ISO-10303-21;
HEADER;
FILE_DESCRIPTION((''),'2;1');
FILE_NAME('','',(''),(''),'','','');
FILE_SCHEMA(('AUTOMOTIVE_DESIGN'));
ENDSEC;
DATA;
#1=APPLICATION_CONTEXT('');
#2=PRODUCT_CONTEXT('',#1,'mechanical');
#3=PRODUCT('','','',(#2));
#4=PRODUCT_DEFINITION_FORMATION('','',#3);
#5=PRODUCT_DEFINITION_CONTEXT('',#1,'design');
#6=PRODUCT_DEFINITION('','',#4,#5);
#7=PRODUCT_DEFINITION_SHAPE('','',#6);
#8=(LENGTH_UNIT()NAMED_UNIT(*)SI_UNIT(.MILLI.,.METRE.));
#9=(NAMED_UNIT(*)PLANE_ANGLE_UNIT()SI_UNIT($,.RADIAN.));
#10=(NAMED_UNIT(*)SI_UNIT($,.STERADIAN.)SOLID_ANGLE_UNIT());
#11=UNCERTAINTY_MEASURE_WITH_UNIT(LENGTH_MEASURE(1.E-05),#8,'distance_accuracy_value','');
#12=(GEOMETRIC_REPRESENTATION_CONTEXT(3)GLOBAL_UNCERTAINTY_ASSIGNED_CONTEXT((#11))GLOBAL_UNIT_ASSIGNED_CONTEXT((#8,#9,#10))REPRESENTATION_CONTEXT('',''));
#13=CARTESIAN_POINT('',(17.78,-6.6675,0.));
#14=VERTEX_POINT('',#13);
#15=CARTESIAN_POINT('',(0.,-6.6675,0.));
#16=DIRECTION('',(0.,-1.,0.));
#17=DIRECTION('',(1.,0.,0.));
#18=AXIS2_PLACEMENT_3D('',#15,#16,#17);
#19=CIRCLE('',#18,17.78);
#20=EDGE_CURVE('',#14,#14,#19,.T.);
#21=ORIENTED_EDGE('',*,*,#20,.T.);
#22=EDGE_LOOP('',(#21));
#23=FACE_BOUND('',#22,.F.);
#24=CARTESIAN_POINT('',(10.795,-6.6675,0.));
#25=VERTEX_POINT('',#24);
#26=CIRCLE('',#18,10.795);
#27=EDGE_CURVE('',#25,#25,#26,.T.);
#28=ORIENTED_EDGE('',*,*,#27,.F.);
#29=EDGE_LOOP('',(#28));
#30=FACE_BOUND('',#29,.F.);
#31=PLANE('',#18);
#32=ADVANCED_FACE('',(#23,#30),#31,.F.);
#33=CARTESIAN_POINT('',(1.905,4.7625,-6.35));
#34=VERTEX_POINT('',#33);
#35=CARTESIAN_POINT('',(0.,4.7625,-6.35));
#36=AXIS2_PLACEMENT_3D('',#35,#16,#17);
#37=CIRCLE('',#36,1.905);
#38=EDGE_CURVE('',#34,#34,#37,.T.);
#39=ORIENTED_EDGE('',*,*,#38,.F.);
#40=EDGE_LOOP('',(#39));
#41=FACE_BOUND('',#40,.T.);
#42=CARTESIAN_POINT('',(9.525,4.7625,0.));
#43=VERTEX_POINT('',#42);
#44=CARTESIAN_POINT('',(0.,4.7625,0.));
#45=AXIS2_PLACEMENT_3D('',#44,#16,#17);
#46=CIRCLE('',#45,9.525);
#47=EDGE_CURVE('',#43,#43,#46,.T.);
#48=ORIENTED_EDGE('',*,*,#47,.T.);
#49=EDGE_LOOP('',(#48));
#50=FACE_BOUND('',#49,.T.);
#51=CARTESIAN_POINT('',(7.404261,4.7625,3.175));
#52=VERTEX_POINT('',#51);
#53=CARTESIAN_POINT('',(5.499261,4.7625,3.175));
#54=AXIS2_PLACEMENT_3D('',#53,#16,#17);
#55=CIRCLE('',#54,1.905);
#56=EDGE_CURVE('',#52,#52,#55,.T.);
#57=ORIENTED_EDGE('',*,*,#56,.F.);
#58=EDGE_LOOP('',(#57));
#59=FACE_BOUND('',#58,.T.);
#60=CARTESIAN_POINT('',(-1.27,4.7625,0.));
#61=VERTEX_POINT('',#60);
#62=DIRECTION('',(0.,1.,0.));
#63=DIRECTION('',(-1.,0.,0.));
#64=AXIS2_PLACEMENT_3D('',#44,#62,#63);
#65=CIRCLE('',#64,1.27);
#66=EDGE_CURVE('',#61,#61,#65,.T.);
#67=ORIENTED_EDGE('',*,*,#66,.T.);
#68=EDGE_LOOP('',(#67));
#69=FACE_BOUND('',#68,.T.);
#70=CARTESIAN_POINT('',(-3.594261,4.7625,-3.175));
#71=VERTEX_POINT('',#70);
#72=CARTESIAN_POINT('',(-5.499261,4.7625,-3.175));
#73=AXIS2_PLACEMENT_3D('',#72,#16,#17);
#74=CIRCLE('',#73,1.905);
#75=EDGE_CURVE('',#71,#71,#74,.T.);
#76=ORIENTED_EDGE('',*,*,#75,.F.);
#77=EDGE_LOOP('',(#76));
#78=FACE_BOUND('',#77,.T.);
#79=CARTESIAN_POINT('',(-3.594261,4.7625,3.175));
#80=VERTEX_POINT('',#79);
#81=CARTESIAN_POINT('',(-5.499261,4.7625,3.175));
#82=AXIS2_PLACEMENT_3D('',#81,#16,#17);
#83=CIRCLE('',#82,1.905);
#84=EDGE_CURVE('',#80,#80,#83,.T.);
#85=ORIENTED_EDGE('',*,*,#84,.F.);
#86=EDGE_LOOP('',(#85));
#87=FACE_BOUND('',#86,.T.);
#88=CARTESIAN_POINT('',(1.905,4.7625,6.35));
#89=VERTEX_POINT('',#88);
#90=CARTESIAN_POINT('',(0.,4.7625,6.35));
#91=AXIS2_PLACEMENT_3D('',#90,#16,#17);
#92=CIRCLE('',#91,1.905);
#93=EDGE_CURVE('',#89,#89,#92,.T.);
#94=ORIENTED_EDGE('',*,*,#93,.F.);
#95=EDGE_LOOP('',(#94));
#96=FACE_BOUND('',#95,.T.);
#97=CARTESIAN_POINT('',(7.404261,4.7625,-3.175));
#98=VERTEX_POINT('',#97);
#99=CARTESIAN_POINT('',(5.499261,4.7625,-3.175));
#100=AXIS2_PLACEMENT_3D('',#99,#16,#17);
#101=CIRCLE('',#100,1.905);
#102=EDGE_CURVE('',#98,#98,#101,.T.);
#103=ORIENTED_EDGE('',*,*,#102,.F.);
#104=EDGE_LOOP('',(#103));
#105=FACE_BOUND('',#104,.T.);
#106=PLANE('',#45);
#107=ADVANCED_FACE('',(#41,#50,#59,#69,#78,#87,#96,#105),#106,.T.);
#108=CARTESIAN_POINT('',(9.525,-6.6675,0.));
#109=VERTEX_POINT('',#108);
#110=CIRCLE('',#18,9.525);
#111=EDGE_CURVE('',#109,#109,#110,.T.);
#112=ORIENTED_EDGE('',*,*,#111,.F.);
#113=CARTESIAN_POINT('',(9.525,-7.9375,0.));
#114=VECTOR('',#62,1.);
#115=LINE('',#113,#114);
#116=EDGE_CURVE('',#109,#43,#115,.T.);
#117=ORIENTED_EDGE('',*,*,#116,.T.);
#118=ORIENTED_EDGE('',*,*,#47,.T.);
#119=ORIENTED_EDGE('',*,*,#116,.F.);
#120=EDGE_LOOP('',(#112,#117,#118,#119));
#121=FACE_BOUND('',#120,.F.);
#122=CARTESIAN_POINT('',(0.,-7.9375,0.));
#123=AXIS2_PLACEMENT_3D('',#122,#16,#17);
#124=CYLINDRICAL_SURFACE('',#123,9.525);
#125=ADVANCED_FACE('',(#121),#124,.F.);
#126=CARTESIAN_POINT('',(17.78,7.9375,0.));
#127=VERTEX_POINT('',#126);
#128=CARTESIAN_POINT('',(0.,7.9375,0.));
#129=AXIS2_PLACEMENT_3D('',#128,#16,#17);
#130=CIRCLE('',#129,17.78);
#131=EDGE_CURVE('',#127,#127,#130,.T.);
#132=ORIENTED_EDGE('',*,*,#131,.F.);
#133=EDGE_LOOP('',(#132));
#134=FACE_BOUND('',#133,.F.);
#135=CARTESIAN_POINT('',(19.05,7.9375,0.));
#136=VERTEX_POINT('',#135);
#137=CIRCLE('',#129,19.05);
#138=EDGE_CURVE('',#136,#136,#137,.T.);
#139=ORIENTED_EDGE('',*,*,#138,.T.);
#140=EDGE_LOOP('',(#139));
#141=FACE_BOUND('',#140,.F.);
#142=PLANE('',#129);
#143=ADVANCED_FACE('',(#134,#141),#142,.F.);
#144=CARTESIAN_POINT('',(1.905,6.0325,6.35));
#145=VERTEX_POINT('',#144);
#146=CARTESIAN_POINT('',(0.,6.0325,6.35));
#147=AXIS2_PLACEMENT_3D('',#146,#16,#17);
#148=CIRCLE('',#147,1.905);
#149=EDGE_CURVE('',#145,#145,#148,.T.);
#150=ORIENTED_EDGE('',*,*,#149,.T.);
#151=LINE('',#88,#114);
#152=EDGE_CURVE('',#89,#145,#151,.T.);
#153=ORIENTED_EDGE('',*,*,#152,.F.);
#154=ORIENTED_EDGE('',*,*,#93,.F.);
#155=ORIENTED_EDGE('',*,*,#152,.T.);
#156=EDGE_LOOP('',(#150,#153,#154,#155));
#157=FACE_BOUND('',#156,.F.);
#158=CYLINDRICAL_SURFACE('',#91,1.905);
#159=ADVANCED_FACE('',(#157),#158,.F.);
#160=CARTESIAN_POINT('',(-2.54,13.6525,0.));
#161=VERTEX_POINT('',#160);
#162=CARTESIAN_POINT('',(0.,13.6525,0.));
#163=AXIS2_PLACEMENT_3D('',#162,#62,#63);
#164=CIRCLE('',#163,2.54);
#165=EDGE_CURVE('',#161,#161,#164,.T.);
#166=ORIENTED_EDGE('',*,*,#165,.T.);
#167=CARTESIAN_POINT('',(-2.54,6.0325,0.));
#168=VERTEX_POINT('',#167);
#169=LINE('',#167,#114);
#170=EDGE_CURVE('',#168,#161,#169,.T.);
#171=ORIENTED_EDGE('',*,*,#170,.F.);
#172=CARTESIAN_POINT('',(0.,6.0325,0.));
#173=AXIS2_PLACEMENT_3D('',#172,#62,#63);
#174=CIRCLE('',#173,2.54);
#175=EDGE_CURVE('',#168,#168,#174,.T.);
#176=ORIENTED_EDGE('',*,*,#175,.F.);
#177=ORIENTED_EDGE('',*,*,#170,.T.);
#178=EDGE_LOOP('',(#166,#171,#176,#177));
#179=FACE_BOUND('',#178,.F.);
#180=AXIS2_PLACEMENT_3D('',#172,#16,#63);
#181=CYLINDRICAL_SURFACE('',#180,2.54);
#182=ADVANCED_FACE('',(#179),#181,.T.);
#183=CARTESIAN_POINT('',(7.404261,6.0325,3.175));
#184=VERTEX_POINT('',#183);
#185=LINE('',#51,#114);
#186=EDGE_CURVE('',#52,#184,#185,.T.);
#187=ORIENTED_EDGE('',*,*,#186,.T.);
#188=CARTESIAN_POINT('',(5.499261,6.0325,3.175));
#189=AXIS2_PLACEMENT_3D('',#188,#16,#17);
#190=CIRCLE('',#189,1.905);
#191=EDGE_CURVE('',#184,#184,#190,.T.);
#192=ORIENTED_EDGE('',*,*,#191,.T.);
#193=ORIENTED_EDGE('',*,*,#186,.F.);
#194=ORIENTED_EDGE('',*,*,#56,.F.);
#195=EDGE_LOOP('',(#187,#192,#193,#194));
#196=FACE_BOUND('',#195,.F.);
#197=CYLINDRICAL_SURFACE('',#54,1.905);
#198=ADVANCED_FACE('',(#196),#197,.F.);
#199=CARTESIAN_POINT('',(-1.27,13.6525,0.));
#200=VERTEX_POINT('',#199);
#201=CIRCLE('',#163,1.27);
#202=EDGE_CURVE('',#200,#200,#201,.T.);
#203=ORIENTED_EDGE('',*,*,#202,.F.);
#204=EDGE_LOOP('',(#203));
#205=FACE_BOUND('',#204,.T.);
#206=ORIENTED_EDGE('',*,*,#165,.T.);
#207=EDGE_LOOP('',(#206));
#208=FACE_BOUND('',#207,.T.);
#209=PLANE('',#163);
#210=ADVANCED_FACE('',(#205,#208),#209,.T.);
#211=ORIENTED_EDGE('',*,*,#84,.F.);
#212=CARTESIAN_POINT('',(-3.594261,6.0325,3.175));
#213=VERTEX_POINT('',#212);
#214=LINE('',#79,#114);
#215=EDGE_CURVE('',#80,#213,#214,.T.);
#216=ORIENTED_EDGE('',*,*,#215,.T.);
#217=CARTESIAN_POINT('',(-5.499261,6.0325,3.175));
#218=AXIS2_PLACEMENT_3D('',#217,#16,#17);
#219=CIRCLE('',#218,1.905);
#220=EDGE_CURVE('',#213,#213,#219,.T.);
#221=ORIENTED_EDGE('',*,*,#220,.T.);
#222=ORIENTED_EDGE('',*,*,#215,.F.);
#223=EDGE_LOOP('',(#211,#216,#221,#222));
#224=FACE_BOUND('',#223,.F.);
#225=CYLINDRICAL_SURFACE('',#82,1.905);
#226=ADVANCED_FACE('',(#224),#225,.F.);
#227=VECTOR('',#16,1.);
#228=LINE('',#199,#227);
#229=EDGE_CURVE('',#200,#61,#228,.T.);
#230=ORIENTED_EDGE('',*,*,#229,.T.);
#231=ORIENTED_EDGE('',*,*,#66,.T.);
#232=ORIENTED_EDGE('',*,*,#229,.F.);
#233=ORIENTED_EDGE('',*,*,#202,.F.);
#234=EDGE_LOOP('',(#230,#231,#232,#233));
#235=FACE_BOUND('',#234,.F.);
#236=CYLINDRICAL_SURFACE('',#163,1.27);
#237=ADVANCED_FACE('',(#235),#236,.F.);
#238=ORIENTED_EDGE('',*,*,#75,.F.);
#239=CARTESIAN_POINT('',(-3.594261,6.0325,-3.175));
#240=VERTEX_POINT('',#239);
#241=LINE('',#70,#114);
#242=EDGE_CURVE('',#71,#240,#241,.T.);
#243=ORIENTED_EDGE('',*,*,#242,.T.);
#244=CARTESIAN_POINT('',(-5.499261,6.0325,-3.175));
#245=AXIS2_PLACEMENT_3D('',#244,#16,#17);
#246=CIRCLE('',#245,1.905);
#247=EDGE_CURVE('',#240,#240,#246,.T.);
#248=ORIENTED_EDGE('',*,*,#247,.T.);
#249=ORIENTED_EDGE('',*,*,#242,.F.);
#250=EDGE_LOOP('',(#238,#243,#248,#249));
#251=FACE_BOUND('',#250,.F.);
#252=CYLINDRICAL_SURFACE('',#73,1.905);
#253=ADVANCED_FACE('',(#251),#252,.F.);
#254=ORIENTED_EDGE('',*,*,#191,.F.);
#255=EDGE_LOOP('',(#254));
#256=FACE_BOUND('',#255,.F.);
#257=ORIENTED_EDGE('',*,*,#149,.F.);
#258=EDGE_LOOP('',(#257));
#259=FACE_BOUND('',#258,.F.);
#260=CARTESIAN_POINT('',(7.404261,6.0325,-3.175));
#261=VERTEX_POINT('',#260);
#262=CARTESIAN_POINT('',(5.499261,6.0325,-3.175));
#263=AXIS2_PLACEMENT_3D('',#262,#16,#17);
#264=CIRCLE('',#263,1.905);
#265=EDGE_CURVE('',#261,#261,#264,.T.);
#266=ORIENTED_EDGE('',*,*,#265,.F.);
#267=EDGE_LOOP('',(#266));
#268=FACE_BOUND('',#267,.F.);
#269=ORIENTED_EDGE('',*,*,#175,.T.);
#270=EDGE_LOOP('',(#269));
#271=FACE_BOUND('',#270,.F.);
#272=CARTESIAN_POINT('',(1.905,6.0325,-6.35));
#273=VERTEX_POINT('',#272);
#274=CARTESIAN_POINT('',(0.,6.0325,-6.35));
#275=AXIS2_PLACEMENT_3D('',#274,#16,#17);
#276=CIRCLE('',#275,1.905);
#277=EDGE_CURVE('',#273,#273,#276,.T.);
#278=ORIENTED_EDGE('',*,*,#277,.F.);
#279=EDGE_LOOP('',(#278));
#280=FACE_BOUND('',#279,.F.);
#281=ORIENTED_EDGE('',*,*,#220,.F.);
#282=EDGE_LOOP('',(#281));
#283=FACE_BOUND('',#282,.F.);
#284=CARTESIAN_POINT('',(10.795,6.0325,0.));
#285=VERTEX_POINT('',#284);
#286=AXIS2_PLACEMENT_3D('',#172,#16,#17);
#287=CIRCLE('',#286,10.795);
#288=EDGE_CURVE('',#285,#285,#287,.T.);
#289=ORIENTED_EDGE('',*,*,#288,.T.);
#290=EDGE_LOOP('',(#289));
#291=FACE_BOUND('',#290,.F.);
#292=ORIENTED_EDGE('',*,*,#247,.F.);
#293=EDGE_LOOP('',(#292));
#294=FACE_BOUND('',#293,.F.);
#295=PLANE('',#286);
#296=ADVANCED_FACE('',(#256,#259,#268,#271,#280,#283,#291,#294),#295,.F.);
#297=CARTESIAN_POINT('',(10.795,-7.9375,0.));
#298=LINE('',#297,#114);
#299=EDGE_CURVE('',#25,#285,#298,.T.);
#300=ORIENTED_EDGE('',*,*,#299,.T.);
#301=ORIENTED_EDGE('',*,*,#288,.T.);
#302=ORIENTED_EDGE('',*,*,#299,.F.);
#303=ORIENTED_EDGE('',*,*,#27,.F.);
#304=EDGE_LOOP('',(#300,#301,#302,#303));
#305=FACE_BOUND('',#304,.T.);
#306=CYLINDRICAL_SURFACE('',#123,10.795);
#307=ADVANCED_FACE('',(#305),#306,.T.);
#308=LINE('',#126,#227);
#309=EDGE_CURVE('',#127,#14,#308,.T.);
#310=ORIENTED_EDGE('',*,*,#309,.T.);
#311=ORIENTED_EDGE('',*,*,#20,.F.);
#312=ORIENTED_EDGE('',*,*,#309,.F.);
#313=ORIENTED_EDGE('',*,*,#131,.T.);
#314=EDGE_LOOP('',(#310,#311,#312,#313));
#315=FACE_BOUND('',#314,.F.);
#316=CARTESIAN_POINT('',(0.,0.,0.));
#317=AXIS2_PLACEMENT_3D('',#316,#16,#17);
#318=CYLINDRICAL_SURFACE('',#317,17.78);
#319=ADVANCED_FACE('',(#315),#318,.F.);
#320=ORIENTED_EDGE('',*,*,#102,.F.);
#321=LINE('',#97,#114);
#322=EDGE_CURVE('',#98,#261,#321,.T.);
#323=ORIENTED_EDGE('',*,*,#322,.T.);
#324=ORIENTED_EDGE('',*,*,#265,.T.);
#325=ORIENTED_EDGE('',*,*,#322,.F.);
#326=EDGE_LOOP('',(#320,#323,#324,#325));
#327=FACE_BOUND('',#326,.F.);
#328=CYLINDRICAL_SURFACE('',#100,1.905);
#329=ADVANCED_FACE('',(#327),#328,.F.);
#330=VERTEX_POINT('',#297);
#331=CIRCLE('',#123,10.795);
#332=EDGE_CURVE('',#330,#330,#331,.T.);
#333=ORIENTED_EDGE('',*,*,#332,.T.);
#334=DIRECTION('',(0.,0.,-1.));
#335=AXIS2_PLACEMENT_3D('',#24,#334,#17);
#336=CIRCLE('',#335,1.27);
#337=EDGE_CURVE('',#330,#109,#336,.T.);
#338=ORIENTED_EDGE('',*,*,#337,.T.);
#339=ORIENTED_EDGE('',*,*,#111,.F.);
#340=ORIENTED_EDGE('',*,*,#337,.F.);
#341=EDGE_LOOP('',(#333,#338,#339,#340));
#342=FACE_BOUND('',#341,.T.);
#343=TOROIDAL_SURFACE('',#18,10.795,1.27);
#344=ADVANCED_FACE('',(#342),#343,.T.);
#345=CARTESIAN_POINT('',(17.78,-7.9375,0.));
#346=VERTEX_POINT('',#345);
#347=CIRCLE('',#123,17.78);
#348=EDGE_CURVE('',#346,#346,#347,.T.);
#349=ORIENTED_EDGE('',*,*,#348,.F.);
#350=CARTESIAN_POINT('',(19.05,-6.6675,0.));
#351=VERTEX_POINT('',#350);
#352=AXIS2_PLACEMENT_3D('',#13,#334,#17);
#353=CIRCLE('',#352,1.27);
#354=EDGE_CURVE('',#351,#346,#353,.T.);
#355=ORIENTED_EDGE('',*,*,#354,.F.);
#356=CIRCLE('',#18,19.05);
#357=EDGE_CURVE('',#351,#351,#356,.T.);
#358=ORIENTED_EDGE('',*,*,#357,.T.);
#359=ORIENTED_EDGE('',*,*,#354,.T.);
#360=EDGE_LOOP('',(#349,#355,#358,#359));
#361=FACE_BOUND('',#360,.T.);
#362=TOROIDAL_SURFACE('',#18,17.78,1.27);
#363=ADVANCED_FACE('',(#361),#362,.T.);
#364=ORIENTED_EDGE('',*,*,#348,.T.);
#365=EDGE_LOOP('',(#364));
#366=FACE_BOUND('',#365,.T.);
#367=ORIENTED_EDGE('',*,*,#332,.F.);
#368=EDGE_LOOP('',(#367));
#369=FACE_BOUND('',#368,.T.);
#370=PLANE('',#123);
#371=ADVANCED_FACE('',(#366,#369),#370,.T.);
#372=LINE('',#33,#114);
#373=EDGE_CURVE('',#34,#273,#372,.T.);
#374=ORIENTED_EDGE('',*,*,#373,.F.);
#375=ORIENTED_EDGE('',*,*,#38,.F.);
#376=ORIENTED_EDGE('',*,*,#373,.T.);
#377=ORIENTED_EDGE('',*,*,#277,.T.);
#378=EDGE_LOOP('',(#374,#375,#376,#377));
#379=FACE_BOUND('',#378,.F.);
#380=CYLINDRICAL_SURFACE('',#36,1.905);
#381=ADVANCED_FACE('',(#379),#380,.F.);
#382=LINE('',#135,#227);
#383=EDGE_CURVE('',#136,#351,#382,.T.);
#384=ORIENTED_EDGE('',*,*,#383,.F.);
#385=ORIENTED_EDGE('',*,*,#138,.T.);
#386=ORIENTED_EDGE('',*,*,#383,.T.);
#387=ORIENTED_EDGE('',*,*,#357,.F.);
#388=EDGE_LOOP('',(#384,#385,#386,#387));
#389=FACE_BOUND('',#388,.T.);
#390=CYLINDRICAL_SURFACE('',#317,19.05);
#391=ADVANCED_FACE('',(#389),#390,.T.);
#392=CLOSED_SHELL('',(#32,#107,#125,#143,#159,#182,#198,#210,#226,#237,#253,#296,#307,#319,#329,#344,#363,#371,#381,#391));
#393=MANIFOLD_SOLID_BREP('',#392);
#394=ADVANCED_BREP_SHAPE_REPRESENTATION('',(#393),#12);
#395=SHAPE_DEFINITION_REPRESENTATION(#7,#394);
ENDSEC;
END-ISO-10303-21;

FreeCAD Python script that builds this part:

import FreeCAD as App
import Part
import Sketcher
from FreeCAD import Vector
Q = App.Units.Quantity


def edges_at(feature, points):
    """Names of the edges that pass closest to the given points."""
    edges = feature.Shape.Edges
    near = lambda p: min(range(len(edges)), key=lambda i: edges[i].distToShape(Part.Vertex(*p))[0])
    return sorted({f"Edge{near(p) + 1}" for p in points})


def faces_at(feature, points):
    """Names of the faces that lie closest to the given points."""
    faces = feature.Shape.Faces
    near = lambda p: min(range(len(faces)), key=lambda i: faces[i].distToShape(Part.Vertex(*p))[0])
    return sorted({f"Face{near(p) + 1}" for p in points})

doc = App.newDocument("Part")
body = doc.addObject("PartDesign::Body", "Body")

sketch1 = body.newObject("Sketcher::SketchObject", "Sketch")
sketch1.AttachmentSupport = (doc.getObject("XZ_Plane"), [""])
sketch1.MapMode = "FlatFace"
sketch1.addGeometry(Part.Circle(Vector(0, 0, 0), Vector(0, 0, 1), 19), False)
sketch1.addConstraint([
    Sketcher.Constraint("Coincident", 0, 3, -1, 1),
    Sketcher.Constraint("Diameter", 0, Q("1.5 in")),
])
pad1 = body.newObject("PartDesign::Pad", "Pad")
pad1.Profile = sketch1
pad1.Length = Q("0.625 in")
pad1.Midplane = True

sketch2 = body.newObject("Sketcher::SketchObject", "Sketch001")
sketch2.AttachmentSupport = (doc.getObject("XZ_Plane"), [""])
sketch2.MapMode = "FlatFace"
sketch2.AttachmentOffset = App.Placement(Vector(0, 0, 0.3125 * 25.4), App.Rotation())
sketch2.addGeometry(Part.Circle(Vector(0, 0, 0), Vector(0, 0, 1), 10), False)
sketch2.addConstraint([
    Sketcher.Constraint("Coincident", 0, 3, -1, 1),
    Sketcher.Constraint("Diameter", 0, Q("0.75 in")),
])
pocket1 = body.newObject("PartDesign::Pocket", "Pocket")
pocket1.Profile = sketch2
pocket1.Length = Q("0.5 in")
doc.recompute()

thickness = body.newObject("PartDesign::Thickness", "Thickness")
thickness.Base = (pocket1, faces_at(pocket1, [(0, 7.938, 0)]))
thickness.Value = Q("0.05 in")
thickness.Reversed = True
thickness.Join = "Intersection"

sketch3 = body.newObject("Sketcher::SketchObject", "Sketch002")
sketch3.AttachmentSupport = (doc.getObject("XZ_Plane"), [""])
sketch3.MapMode = "FlatFace"
sketch3.AttachmentOffset = App.Placement(Vector(0, 0, -0.1875 * 25.4), App.Rotation())
sketch3.addGeometry([
    Part.Circle(Vector(0, 6.3, 0), Vector(0, 0, 1), 1.9),
    Part.Circle(Vector(-5.5, 3.2, 0), Vector(0, 0, 1), 1.9),
    Part.Circle(Vector(-5.5, -3.2, 0), Vector(0, 0, 1), 1.9),
    Part.Circle(Vector(0, -6.3, 0), Vector(0, 0, 1), 1.9),
    Part.Circle(Vector(5.5, -3.2, 0), Vector(0, 0, 1), 1.9),
    Part.Circle(Vector(5.5, 3.2, 0), Vector(0, 0, 1), 1.9),
], False)
sketch3.addConstraint([
    Sketcher.Constraint("Equal", 0, 1),
    Sketcher.Constraint("Equal", 1, 2),
    Sketcher.Constraint("Equal", 2, 3),
    Sketcher.Constraint("Equal", 3, 4),
    Sketcher.Constraint("Equal", 4, 5),
    Sketcher.Constraint("Symmetric", 0, 3, 3, 3, -1, 1),
    Sketcher.Constraint("Symmetric", 1, 3, 4, 3, -1, 1),
    Sketcher.Constraint("Symmetric", 2, 3, 5, 3, -1, 1),
    Sketcher.Constraint("Symmetric", 2, 3, 4, 3, -2),
    Sketcher.Constraint("PointOnObject", 0, 3, -2),
    Sketcher.Constraint("Diameter", 0, Q("0.15 in")),
    Sketcher.Constraint("DistanceY", 3, 3, 0, 3, Q("0.5 in")),
    Sketcher.Constraint("DistanceY", 2, 3, 1, 3, Q("0.25 in")),
    Sketcher.Constraint("DistanceX", 1, 3, -1, 1, 5.499261),
])
pocket2 = body.newObject("PartDesign::Pocket", "Pocket001")
pocket2.Profile = sketch3
pocket2.Type = "ThroughAll"

sketch4 = body.newObject("Sketcher::SketchObject", "Sketch003")
sketch4.AttachmentSupport = (doc.getObject("XZ_Plane"), [""])
sketch4.MapMode = "FlatFace"
sketch4.AttachmentOffset = App.Placement(Vector(0, 0, -0.2375 * 25.4), App.Rotation())
sketch4.addGeometry(Part.Circle(Vector(0, 0, 0), Vector(0, 0, 1), 2.5), False)
sketch4.addConstraint([
    Sketcher.Constraint("Coincident", 0, 3, -1, 1),
    Sketcher.Constraint("Diameter", 0, Q("0.2 in")),
])
pad2 = body.newObject("PartDesign::Pad", "Pad001")
pad2.Profile = sketch4
pad2.Length = Q("0.3 in")
pad2.Reversed = True

sketch5 = body.newObject("Sketcher::SketchObject", "Sketch004")
sketch5.AttachmentSupport = (doc.getObject("XZ_Plane"), [""])
sketch5.MapMode = "FlatFace"
sketch5.AttachmentOffset = App.Placement(Vector(0, 0, -0.5375 * 25.4), App.Rotation())
sketch5.addGeometry(Part.Circle(Vector(0, 0, 0), Vector(0, 0, 1), 1.3), False)
sketch5.addConstraint([
    Sketcher.Constraint("Coincident", 0, 3, -1, 1),
    Sketcher.Constraint("Diameter", 0, Q("0.1 in")),
])
pocket3 = body.newObject("PartDesign::Pocket", "Pocket002")
pocket3.Profile = sketch5
pocket3.Type = "ThroughAll"
pocket3.Reversed = True
doc.recompute()

fillet = body.newObject("PartDesign::Fillet", "Fillet")
fillet.Base = (pocket3, edges_at(pocket3, [(-19.05, -7.938, 0), (-9.525, -7.938, 0)]))
fillet.Radius = Q("0.05 in")

doc.recompute()
